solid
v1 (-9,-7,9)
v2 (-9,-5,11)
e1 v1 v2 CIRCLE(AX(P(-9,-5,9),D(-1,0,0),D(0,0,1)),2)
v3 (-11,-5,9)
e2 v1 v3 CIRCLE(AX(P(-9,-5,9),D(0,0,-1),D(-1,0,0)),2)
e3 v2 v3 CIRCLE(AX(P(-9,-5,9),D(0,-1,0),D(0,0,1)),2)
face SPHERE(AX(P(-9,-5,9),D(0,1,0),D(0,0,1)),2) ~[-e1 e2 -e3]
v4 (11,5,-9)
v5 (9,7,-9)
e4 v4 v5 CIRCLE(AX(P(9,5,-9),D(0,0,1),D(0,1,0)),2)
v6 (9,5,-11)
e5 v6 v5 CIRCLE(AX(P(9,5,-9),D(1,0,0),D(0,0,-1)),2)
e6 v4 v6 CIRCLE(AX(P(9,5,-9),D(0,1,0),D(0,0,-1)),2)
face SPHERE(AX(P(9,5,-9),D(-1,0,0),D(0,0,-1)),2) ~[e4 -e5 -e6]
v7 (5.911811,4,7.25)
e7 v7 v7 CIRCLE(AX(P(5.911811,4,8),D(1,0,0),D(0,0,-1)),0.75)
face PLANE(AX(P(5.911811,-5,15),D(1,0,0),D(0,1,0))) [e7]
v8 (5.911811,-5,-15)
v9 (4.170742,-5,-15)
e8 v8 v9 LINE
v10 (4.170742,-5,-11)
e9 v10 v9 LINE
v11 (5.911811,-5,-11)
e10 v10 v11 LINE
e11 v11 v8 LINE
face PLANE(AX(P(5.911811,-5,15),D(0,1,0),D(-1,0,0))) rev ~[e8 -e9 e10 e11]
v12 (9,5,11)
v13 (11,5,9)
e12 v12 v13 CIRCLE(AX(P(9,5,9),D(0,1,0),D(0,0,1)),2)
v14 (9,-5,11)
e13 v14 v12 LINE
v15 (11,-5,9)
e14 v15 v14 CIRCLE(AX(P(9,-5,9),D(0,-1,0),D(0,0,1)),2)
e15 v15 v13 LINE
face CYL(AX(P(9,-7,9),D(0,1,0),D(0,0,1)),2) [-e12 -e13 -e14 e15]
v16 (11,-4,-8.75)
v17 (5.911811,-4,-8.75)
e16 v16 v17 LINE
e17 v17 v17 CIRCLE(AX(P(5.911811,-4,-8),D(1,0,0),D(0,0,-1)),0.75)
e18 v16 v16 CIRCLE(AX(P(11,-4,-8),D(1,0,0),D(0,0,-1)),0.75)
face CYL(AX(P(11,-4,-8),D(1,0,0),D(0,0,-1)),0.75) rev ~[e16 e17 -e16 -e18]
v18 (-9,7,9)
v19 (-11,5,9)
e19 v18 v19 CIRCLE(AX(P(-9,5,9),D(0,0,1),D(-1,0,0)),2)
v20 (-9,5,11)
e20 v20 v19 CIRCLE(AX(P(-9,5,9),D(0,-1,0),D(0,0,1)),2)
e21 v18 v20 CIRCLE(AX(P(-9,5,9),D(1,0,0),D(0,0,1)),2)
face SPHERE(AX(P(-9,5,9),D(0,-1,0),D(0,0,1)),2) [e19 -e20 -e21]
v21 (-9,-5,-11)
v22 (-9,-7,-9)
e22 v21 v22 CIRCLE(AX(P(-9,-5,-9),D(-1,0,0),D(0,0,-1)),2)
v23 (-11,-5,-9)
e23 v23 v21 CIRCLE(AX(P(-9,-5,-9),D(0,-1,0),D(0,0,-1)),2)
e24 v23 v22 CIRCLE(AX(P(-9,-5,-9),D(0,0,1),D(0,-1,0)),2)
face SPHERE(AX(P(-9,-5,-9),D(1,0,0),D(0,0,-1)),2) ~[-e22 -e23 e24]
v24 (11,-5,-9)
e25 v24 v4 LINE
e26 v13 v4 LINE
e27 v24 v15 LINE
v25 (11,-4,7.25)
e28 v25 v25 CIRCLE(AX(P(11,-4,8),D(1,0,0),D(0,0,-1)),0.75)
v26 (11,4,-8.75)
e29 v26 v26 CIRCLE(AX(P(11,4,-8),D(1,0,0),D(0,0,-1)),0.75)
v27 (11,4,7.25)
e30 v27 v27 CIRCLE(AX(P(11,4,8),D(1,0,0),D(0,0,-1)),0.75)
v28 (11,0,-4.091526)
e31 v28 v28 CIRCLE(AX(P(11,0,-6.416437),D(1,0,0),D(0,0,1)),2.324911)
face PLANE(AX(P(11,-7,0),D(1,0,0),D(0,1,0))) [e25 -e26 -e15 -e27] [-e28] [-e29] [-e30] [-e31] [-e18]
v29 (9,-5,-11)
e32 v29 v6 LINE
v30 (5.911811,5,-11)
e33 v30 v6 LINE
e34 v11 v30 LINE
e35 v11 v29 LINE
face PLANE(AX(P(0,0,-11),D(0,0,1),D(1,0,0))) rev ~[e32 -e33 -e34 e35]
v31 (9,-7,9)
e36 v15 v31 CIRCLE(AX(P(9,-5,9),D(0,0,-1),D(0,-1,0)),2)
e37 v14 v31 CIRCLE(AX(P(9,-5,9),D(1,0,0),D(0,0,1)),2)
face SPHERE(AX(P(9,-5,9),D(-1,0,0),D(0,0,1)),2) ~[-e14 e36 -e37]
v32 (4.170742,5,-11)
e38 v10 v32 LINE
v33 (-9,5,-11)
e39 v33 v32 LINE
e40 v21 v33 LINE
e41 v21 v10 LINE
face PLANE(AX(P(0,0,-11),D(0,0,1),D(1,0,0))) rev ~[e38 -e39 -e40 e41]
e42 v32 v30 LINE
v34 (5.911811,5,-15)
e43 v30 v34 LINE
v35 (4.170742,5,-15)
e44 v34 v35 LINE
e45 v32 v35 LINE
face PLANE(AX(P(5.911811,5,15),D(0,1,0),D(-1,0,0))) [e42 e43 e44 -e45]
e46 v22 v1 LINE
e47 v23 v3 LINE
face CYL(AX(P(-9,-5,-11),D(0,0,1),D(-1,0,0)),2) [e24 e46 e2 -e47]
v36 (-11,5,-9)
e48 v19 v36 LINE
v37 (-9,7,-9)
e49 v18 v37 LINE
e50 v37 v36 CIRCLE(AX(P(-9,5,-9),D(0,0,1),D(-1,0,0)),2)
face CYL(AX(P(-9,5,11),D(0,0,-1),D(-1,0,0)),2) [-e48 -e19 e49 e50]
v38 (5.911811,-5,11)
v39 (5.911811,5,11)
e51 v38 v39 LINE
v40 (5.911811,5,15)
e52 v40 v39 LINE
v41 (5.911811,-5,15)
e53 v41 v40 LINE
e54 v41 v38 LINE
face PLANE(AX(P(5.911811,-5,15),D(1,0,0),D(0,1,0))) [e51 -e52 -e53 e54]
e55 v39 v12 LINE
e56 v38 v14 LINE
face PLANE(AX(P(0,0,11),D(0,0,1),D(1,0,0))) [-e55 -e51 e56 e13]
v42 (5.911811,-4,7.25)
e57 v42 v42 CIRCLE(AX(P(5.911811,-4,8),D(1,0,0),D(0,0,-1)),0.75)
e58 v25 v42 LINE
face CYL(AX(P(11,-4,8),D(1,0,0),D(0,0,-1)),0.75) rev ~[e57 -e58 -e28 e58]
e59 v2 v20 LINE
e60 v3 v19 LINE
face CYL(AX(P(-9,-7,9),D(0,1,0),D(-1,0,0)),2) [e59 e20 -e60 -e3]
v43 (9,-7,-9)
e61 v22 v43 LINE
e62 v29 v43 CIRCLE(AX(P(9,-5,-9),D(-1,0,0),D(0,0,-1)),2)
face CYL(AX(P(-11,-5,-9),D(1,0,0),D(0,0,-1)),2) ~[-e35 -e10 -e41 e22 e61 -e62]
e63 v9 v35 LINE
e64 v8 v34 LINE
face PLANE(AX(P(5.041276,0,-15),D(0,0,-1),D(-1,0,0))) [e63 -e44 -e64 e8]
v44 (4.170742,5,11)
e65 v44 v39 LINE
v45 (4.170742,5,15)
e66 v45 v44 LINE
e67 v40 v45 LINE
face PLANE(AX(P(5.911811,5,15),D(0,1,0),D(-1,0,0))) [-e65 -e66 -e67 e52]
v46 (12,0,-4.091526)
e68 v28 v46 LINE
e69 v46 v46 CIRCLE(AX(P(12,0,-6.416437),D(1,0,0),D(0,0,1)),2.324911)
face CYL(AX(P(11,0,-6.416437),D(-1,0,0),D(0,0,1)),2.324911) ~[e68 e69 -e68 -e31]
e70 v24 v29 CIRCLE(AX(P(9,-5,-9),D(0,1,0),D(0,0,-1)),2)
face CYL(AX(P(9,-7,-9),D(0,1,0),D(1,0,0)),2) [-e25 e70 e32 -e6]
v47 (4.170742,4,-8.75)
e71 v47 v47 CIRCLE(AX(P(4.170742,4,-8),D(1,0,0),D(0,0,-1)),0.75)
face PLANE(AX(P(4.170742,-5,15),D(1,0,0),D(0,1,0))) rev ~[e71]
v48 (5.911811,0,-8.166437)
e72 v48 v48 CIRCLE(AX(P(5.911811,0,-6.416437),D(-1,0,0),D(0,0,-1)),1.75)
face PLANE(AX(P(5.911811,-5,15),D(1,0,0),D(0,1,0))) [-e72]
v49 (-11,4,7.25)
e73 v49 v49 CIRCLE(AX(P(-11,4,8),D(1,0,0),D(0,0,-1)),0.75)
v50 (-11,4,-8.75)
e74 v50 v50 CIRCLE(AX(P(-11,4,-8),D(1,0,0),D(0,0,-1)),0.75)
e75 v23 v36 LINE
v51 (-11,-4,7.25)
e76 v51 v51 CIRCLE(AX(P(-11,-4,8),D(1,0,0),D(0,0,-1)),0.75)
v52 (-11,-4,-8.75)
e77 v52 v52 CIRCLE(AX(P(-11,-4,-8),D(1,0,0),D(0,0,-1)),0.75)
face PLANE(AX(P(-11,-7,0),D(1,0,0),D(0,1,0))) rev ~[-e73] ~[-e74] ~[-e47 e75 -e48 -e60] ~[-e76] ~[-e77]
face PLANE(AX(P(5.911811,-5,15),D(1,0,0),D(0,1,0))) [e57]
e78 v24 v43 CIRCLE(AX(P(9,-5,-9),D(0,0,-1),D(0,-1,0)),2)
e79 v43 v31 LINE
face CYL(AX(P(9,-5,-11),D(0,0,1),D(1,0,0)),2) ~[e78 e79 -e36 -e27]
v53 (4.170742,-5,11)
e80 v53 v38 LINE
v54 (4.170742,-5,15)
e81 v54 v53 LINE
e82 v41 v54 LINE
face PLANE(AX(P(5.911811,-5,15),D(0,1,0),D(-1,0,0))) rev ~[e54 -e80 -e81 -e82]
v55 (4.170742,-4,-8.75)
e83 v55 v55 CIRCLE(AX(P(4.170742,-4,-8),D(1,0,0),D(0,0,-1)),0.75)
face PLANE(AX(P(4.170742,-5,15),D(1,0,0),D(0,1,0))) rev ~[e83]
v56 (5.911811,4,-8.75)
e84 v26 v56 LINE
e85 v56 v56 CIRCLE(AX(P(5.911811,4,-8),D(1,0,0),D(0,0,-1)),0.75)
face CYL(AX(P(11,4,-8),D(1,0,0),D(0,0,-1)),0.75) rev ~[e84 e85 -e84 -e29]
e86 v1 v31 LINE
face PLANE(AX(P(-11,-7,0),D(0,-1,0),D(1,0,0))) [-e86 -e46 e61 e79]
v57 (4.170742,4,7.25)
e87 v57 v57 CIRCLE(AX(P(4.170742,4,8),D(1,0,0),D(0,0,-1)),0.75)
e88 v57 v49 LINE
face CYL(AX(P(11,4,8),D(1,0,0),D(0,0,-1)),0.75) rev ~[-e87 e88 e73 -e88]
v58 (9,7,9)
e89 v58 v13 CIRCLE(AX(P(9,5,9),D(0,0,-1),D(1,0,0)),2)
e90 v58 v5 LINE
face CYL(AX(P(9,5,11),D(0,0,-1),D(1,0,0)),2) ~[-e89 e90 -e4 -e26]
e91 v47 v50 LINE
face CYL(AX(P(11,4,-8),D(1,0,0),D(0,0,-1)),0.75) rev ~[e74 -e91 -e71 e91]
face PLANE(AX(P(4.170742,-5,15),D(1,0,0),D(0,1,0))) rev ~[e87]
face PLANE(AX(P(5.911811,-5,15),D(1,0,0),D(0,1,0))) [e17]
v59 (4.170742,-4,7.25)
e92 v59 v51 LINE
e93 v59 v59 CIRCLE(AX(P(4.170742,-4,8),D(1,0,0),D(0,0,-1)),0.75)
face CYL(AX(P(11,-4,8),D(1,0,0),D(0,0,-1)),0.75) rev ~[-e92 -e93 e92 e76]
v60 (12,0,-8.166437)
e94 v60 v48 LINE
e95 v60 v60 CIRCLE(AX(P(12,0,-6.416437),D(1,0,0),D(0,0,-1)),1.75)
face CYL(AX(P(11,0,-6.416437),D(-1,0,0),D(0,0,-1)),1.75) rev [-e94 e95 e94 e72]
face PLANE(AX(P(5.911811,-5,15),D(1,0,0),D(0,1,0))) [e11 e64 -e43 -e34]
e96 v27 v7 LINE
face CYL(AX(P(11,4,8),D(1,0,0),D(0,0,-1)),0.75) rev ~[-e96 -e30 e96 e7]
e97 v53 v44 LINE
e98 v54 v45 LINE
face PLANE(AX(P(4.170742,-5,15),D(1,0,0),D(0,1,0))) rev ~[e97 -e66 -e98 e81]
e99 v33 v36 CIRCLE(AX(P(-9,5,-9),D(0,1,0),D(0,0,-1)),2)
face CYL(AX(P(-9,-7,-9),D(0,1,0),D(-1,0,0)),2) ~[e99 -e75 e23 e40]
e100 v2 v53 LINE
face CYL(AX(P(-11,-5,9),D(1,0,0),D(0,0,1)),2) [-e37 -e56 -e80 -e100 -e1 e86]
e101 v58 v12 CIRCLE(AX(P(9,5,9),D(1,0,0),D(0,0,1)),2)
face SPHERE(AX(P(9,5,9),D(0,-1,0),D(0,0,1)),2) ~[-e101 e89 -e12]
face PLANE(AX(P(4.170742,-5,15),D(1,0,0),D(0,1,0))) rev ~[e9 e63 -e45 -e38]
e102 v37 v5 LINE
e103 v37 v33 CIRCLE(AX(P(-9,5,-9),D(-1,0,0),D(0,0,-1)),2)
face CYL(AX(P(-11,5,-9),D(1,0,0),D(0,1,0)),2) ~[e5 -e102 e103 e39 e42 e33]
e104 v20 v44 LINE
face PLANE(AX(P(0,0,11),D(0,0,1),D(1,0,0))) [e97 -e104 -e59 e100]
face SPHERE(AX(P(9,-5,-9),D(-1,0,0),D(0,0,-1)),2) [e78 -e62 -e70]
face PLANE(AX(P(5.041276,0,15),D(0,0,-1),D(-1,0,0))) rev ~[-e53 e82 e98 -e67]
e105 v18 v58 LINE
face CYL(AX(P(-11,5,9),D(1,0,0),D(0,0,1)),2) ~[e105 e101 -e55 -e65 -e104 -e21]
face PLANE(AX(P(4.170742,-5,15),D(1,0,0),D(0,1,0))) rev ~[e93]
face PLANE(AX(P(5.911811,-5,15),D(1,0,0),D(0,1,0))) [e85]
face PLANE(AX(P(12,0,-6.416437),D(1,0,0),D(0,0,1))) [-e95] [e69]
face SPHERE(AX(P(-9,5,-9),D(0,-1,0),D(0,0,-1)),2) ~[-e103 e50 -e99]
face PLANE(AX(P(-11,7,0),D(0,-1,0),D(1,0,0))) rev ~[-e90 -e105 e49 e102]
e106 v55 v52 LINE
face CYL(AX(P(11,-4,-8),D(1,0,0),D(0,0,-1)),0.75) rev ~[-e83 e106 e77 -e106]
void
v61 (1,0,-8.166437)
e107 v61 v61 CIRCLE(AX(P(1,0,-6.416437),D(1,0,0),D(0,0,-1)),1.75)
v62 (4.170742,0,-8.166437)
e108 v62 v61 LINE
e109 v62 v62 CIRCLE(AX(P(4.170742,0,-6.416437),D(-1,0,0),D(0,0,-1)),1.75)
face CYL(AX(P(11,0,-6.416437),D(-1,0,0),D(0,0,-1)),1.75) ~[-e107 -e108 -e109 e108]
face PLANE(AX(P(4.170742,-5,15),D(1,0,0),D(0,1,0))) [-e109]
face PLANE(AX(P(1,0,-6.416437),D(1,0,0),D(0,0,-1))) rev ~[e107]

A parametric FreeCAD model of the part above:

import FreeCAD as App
import Part
import Sketcher
from FreeCAD import Vector
Q = App.Units.Quantity

doc = App.newDocument("Part")
body = doc.addObject("PartDesign::Body", "Body")

# Sketch on XY plane
sketch1 = body.newObject("Sketcher::SketchObject", "Sketch")
sketch1.AttachmentSupport = (doc.getObject("XY_Plane"), [""])
sketch1.MapMode = "FlatFace"
sketch1.addGeometry([
    Part.LineSegment(Vector(-11, 7, 0), Vector(-11, -7, 0)),
    Part.LineSegment(Vector(-11, -7, 0), Vector(11, -7, 0)),
    Part.LineSegment(Vector(11, -7, 0), Vector(11, 7, 0)),
    Part.LineSegment(Vector(11, 7, 0), Vector(-11, 7, 0)),
], False)
sketch1.addConstraint([
    Sketcher.Constraint("Coincident", 0, 2, 1, 1),
    Sketcher.Constraint("Coincident", 1, 2, 2, 1),
    Sketcher.Constraint("Coincident", 2, 2, 3, 1),
    Sketcher.Constraint("Coincident", 3, 2, 0, 1),
    Sketcher.Constraint("Vertical", 0),
    Sketcher.Constraint("Horizontal", 1),
    Sketcher.Constraint("Vertical", 2),
    Sketcher.Constraint("Horizontal", 3),
    Sketcher.Constraint("Symmetric", 0, 2, 2, 2, -1, 1),
    Sketcher.Constraint("DistanceX", 1, 1, 1, 2, Q("22 mm")),
    Sketcher.Constraint("DistanceY", 0, 2, 0, 1, Q("14 mm")),
])
pad1 = body.newObject("PartDesign::Pad", "Pad")
pad1.Profile = sketch1
pad1.Length = 22
pad1.Midplane = True
doc.recompute()

fillet = body.newObject("PartDesign::Fillet", "Fillet")
fillet.Base = (pad1, ["Edge1"])
fillet.UseAllEdges = True
fillet.Radius = 2

# Sketch on YZ plane
sketch2 = body.newObject("Sketcher::SketchObject", "Sketch001")
sketch2.AttachmentSupport = (doc.getObject("YZ_Plane"), [""])
sketch2.MapMode = "FlatFace"
sketch2.AttachmentOffset = App.Placement(Vector(0, 0, 11), App.Rotation())
sketch2.addGeometry([
    Part.Circle(Vector(4, 8, 0), Vector(0, 0, 1), 0.8),
    Part.Circle(Vector(-4, 8, 0), Vector(0, 0, 1), 0.8),
    Part.Circle(Vector(-4, -8, 0), Vector(0, 0, 1), 0.8),
    Part.Circle(Vector(4, -8, 0), Vector(0, 0, 1), 0.8),
], False)
sketch2.addConstraint([
    Sketcher.Constraint("Equal", 0, 1),
    Sketcher.Constraint("Equal", 1, 2),
    Sketcher.Constraint("Equal", 2, 3),
    Sketcher.Constraint("Symmetric", 0, 3, 2, 3, -1, 1),
    Sketcher.Constraint("Symmetric", 1, 3, 3, 3, -1, 1),
    Sketcher.Constraint("Symmetric", 0, 3, 1, 3, -2),
    Sketcher.Constraint("Diameter", 0, Q("1.5 mm")),
    Sketcher.Constraint("DistanceX", -1, 1, 0, 3, Q("4 mm")),
    Sketcher.Constraint("DistanceY", -1, 1, 0, 3, Q("8 mm")),
])
pocket1 = body.newObject("PartDesign::Pocket", "Pocket")
pocket1.Profile = sketch2
pocket1.Length = 28

# Sketch on YZ plane
sketch3 = body.newObject("Sketcher::SketchObject", "Sketch002")
sketch3.AttachmentSupport = (doc.getObject("YZ_Plane"), [""])
sketch3.MapMode = "FlatFace"
sketch3.AttachmentOffset = App.Placement(Vector(0, 0, 11), App.Rotation())
sketch3.addGeometry([
    Part.Circle(Vector(0, -6.4, 0), Vector(0, 0, 1), 2.3),
    Part.Circle(Vector(0, -6.4, 0), Vector(0, 0, 1), 1.8),
], False)
sketch3.addConstraint([
    Sketcher.Constraint("Coincident", 1, 3, 0, 3),
    Sketcher.Constraint("PointOnObject", 0, 3, -2),
    Sketcher.Constraint("Diameter", 1, Q("3.5 mm")),
    Sketcher.Constraint("Diameter", 0, Q("4.649821 mm")),
    Sketcher.Constraint("DistanceY", 0, 3, -1, 1, Q("6.416437 mm")),
])
pad2 = body.newObject("PartDesign::Pad", "Pad001")
pad2.Profile = sketch3
pad2.Length = 1

# Sketch on YZ plane
sketch4 = body.newObject("Sketcher::SketchObject", "Sketch003")
sketch4.AttachmentSupport = (doc.getObject("YZ_Plane"), [""])
sketch4.MapMode = "FlatFace"
sketch4.AttachmentOffset = App.Placement(Vector(0, 0, 1), App.Rotation())
sketch4.addGeometry(Part.Circle(Vector(0, -6.4, 0), Vector(0, 0, 1), 1.8), False)
sketch4.addConstraint([
    Sketcher.Constraint("PointOnObject", 0, 3, -2),
    Sketcher.Constraint("Diameter", 0, Q("3.5 mm")),
    Sketcher.Constraint("DistanceY", 0, 3, -1, 1, Q("6.416437 mm")),
])
pocket2 = body.newObject("PartDesign::Pocket", "Pocket001")
pocket2.Profile = sketch4
pocket2.Length = 10
pocket2.Reversed = True

# Sketch on XY plane
sketch5 = body.newObject("Sketcher::SketchObject", "Sketch004")
sketch5.AttachmentSupport = (doc.getObject("XY_Plane"), [""])
sketch5.MapMode = "FlatFace"
sketch5.AttachmentOffset = App.Placement(Vector(0, 0, -11), App.Rotation())
sketch5.addGeometry([
    Part.LineSegment(Vector(5.9, 5, 0), Vector(5.9, -5, 0)),
    Part.LineSegment(Vector(5.9, -5, 0), Vector(4.2, -5, 0)),
    Part.LineSegment(Vector(4.2, -5, 0), Vector(4.2, 5, 0)),
    Part.LineSegment(Vector(4.2, 5, 0), Vector(5.9, 5, 0)),
], False)
sketch5.addConstraint([
    Sketcher.Constraint("Coincident", 0, 2, 1, 1),
    Sketcher.Constraint("Coincident", 1, 2, 2, 1),
    Sketcher.Constraint("Coincident", 2, 2, 3, 1),
    Sketcher.Constraint("Coincident", 3, 2, 0, 1),
    Sketcher.Constraint("Vertical", 0),
    Sketcher.Constraint("Horizontal", 1),
    Sketcher.Constraint("Vertical", 2),
    Sketcher.Constraint("Horizontal", 3),
    Sketcher.Constraint("DistanceY", 0, 2, 0, 1, Q("10 mm")),
    Sketcher.Constraint("DistanceY", 0, 2, -1, 1, Q("5 mm")),
    Sketcher.Constraint("DistanceX", 1, 2, 1, 1, Q("1.741069 mm")),
    Sketcher.Constraint("DistanceX", -1, 1, 0, 2, Q("5.911811 mm")),
])
pad3 = body.newObject("PartDesign::Pad", "Pad002")
pad3.Profile = sketch5
pad3.Type = "TwoLengths"
pad3.Length = 4
pad3.Length2 = 26
pad3.Reversed = True

doc.recompute()
